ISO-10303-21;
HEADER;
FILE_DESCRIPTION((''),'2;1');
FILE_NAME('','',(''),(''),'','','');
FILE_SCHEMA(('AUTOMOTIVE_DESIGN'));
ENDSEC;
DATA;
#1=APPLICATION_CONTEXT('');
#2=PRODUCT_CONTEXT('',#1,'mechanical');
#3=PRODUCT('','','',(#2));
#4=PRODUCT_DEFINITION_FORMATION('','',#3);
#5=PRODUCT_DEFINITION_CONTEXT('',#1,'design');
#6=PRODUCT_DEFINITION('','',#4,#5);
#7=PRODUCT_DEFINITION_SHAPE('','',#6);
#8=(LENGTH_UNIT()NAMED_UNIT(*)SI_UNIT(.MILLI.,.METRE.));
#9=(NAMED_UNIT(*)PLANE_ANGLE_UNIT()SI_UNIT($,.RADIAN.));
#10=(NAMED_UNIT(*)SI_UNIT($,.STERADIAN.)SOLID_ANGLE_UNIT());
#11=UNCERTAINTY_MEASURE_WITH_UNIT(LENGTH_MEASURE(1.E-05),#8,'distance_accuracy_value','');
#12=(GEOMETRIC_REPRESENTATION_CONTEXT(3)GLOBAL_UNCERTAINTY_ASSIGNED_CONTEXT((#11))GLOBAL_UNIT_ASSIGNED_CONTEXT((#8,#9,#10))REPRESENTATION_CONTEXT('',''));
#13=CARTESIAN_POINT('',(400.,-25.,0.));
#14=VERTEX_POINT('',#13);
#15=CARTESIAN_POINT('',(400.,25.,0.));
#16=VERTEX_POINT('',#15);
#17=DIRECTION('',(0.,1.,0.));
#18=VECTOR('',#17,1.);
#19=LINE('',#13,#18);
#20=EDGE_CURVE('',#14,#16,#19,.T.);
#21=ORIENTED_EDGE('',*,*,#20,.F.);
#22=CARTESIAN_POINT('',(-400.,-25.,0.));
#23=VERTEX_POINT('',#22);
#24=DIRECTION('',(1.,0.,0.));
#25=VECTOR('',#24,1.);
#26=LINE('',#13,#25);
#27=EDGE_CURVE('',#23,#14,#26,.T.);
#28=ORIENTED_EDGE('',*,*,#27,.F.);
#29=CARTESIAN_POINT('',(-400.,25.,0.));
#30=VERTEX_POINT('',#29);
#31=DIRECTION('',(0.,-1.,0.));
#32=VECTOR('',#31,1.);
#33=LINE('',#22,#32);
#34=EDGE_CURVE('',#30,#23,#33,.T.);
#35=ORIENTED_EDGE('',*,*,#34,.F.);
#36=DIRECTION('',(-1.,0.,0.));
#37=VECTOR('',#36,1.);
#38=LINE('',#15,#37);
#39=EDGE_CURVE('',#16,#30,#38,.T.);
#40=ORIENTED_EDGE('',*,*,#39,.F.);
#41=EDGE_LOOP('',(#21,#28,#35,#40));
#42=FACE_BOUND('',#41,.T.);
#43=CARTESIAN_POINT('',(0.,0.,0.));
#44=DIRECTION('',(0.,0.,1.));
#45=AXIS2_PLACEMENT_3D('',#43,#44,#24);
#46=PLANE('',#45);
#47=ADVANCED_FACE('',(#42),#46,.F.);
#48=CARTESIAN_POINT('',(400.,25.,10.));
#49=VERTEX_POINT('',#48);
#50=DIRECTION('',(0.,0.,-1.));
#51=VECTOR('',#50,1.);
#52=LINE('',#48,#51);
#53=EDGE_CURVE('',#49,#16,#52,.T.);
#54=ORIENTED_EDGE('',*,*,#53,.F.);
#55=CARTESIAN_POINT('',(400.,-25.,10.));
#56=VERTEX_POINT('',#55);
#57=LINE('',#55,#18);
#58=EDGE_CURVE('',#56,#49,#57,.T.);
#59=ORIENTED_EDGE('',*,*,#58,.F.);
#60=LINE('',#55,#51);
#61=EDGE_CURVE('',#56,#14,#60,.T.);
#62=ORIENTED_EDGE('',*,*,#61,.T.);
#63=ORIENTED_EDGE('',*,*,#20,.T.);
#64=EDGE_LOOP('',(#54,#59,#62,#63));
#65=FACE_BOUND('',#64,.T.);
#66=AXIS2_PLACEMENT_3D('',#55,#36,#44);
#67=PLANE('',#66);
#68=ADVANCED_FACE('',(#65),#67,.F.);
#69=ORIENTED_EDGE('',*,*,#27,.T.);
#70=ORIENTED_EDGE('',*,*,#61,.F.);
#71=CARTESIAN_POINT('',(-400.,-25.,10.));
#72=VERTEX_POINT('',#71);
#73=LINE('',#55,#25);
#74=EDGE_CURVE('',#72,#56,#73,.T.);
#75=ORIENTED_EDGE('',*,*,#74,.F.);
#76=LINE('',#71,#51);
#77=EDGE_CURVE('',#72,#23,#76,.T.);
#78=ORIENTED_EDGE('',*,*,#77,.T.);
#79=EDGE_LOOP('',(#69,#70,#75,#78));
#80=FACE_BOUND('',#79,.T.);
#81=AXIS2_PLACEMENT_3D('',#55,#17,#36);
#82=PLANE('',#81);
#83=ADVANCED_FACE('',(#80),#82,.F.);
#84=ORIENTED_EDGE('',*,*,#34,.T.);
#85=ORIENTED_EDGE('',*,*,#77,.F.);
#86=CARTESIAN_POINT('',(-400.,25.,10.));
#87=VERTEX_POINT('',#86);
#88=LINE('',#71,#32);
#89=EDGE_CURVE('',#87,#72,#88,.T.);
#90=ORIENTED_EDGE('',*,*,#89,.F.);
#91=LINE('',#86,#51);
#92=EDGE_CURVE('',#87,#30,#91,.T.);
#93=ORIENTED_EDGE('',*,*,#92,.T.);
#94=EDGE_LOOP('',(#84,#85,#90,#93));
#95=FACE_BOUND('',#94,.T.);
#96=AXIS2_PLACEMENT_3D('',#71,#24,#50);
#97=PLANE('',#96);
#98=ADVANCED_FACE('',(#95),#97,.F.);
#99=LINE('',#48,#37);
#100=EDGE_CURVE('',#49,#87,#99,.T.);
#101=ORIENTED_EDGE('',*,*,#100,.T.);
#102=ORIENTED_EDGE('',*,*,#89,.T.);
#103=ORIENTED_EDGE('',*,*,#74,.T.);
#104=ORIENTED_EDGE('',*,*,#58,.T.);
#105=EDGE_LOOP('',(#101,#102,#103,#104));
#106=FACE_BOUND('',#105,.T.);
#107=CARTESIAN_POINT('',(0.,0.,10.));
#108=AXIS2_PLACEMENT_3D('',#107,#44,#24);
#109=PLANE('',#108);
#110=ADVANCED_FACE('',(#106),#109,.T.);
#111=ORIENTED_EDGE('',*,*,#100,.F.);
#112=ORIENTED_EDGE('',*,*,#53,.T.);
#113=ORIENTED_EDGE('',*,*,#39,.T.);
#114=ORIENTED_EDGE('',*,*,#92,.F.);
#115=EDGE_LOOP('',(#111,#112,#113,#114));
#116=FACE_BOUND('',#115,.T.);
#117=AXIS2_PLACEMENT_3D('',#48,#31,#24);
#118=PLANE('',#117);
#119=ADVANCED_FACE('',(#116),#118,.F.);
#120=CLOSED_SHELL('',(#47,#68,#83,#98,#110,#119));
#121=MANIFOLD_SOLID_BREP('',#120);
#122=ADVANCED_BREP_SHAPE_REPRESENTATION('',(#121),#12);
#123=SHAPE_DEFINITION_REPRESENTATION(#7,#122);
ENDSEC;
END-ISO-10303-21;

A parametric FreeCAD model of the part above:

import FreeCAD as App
import Part
import Sketcher

V = App.Vector

doc = App.newDocument("Part")
body = doc.addObject("PartDesign::Body", "Body")

# Sketch on XY plane
sketch1 = body.newObject("Sketcher::SketchObject", "Sketch")
sketch1.AttachmentSupport = (doc.getObject("XY_Plane"), [""])
sketch1.MapMode = "FlatFace"
sketch1.addGeometry([
    Part.LineSegment(V(-400, 25, 0), V(-400, -25, 0)),
    Part.LineSegment(V(-400, -25, 0), V(400, -25, 0)),
    Part.LineSegment(V(400, -25, 0), V(400, 25, 0)),
    Part.LineSegment(V(400, 25, 0), V(-400, 25, 0)),
], False)
sketch1.addConstraint([
    Sketcher.Constraint("Coincident", 0, 2, 1, 1),
    Sketcher.Constraint("Coincident", 1, 2, 2, 1),
    Sketcher.Constraint("Coincident", 2, 2, 3, 1),
    Sketcher.Constraint("Coincident", 3, 2, 0, 1),
    Sketcher.Constraint("Vertical", 0),
    Sketcher.Constraint("Horizontal", 1),
    Sketcher.Constraint("Vertical", 2),
    Sketcher.Constraint("Horizontal", 3),
    Sketcher.Constraint("Symmetric", 0, 2, 2, 2, -1, 1),
    Sketcher.Constraint("DistanceX", 1, 1, 1, 2, 800.0),
    Sketcher.Constraint("DistanceY", 0, 2, 0, 1, 50.0),
])
pad1 = body.newObject("PartDesign::Pad", "Pad")
pad1.Profile = sketch1
pad1.Length = 10

doc.recompute()
